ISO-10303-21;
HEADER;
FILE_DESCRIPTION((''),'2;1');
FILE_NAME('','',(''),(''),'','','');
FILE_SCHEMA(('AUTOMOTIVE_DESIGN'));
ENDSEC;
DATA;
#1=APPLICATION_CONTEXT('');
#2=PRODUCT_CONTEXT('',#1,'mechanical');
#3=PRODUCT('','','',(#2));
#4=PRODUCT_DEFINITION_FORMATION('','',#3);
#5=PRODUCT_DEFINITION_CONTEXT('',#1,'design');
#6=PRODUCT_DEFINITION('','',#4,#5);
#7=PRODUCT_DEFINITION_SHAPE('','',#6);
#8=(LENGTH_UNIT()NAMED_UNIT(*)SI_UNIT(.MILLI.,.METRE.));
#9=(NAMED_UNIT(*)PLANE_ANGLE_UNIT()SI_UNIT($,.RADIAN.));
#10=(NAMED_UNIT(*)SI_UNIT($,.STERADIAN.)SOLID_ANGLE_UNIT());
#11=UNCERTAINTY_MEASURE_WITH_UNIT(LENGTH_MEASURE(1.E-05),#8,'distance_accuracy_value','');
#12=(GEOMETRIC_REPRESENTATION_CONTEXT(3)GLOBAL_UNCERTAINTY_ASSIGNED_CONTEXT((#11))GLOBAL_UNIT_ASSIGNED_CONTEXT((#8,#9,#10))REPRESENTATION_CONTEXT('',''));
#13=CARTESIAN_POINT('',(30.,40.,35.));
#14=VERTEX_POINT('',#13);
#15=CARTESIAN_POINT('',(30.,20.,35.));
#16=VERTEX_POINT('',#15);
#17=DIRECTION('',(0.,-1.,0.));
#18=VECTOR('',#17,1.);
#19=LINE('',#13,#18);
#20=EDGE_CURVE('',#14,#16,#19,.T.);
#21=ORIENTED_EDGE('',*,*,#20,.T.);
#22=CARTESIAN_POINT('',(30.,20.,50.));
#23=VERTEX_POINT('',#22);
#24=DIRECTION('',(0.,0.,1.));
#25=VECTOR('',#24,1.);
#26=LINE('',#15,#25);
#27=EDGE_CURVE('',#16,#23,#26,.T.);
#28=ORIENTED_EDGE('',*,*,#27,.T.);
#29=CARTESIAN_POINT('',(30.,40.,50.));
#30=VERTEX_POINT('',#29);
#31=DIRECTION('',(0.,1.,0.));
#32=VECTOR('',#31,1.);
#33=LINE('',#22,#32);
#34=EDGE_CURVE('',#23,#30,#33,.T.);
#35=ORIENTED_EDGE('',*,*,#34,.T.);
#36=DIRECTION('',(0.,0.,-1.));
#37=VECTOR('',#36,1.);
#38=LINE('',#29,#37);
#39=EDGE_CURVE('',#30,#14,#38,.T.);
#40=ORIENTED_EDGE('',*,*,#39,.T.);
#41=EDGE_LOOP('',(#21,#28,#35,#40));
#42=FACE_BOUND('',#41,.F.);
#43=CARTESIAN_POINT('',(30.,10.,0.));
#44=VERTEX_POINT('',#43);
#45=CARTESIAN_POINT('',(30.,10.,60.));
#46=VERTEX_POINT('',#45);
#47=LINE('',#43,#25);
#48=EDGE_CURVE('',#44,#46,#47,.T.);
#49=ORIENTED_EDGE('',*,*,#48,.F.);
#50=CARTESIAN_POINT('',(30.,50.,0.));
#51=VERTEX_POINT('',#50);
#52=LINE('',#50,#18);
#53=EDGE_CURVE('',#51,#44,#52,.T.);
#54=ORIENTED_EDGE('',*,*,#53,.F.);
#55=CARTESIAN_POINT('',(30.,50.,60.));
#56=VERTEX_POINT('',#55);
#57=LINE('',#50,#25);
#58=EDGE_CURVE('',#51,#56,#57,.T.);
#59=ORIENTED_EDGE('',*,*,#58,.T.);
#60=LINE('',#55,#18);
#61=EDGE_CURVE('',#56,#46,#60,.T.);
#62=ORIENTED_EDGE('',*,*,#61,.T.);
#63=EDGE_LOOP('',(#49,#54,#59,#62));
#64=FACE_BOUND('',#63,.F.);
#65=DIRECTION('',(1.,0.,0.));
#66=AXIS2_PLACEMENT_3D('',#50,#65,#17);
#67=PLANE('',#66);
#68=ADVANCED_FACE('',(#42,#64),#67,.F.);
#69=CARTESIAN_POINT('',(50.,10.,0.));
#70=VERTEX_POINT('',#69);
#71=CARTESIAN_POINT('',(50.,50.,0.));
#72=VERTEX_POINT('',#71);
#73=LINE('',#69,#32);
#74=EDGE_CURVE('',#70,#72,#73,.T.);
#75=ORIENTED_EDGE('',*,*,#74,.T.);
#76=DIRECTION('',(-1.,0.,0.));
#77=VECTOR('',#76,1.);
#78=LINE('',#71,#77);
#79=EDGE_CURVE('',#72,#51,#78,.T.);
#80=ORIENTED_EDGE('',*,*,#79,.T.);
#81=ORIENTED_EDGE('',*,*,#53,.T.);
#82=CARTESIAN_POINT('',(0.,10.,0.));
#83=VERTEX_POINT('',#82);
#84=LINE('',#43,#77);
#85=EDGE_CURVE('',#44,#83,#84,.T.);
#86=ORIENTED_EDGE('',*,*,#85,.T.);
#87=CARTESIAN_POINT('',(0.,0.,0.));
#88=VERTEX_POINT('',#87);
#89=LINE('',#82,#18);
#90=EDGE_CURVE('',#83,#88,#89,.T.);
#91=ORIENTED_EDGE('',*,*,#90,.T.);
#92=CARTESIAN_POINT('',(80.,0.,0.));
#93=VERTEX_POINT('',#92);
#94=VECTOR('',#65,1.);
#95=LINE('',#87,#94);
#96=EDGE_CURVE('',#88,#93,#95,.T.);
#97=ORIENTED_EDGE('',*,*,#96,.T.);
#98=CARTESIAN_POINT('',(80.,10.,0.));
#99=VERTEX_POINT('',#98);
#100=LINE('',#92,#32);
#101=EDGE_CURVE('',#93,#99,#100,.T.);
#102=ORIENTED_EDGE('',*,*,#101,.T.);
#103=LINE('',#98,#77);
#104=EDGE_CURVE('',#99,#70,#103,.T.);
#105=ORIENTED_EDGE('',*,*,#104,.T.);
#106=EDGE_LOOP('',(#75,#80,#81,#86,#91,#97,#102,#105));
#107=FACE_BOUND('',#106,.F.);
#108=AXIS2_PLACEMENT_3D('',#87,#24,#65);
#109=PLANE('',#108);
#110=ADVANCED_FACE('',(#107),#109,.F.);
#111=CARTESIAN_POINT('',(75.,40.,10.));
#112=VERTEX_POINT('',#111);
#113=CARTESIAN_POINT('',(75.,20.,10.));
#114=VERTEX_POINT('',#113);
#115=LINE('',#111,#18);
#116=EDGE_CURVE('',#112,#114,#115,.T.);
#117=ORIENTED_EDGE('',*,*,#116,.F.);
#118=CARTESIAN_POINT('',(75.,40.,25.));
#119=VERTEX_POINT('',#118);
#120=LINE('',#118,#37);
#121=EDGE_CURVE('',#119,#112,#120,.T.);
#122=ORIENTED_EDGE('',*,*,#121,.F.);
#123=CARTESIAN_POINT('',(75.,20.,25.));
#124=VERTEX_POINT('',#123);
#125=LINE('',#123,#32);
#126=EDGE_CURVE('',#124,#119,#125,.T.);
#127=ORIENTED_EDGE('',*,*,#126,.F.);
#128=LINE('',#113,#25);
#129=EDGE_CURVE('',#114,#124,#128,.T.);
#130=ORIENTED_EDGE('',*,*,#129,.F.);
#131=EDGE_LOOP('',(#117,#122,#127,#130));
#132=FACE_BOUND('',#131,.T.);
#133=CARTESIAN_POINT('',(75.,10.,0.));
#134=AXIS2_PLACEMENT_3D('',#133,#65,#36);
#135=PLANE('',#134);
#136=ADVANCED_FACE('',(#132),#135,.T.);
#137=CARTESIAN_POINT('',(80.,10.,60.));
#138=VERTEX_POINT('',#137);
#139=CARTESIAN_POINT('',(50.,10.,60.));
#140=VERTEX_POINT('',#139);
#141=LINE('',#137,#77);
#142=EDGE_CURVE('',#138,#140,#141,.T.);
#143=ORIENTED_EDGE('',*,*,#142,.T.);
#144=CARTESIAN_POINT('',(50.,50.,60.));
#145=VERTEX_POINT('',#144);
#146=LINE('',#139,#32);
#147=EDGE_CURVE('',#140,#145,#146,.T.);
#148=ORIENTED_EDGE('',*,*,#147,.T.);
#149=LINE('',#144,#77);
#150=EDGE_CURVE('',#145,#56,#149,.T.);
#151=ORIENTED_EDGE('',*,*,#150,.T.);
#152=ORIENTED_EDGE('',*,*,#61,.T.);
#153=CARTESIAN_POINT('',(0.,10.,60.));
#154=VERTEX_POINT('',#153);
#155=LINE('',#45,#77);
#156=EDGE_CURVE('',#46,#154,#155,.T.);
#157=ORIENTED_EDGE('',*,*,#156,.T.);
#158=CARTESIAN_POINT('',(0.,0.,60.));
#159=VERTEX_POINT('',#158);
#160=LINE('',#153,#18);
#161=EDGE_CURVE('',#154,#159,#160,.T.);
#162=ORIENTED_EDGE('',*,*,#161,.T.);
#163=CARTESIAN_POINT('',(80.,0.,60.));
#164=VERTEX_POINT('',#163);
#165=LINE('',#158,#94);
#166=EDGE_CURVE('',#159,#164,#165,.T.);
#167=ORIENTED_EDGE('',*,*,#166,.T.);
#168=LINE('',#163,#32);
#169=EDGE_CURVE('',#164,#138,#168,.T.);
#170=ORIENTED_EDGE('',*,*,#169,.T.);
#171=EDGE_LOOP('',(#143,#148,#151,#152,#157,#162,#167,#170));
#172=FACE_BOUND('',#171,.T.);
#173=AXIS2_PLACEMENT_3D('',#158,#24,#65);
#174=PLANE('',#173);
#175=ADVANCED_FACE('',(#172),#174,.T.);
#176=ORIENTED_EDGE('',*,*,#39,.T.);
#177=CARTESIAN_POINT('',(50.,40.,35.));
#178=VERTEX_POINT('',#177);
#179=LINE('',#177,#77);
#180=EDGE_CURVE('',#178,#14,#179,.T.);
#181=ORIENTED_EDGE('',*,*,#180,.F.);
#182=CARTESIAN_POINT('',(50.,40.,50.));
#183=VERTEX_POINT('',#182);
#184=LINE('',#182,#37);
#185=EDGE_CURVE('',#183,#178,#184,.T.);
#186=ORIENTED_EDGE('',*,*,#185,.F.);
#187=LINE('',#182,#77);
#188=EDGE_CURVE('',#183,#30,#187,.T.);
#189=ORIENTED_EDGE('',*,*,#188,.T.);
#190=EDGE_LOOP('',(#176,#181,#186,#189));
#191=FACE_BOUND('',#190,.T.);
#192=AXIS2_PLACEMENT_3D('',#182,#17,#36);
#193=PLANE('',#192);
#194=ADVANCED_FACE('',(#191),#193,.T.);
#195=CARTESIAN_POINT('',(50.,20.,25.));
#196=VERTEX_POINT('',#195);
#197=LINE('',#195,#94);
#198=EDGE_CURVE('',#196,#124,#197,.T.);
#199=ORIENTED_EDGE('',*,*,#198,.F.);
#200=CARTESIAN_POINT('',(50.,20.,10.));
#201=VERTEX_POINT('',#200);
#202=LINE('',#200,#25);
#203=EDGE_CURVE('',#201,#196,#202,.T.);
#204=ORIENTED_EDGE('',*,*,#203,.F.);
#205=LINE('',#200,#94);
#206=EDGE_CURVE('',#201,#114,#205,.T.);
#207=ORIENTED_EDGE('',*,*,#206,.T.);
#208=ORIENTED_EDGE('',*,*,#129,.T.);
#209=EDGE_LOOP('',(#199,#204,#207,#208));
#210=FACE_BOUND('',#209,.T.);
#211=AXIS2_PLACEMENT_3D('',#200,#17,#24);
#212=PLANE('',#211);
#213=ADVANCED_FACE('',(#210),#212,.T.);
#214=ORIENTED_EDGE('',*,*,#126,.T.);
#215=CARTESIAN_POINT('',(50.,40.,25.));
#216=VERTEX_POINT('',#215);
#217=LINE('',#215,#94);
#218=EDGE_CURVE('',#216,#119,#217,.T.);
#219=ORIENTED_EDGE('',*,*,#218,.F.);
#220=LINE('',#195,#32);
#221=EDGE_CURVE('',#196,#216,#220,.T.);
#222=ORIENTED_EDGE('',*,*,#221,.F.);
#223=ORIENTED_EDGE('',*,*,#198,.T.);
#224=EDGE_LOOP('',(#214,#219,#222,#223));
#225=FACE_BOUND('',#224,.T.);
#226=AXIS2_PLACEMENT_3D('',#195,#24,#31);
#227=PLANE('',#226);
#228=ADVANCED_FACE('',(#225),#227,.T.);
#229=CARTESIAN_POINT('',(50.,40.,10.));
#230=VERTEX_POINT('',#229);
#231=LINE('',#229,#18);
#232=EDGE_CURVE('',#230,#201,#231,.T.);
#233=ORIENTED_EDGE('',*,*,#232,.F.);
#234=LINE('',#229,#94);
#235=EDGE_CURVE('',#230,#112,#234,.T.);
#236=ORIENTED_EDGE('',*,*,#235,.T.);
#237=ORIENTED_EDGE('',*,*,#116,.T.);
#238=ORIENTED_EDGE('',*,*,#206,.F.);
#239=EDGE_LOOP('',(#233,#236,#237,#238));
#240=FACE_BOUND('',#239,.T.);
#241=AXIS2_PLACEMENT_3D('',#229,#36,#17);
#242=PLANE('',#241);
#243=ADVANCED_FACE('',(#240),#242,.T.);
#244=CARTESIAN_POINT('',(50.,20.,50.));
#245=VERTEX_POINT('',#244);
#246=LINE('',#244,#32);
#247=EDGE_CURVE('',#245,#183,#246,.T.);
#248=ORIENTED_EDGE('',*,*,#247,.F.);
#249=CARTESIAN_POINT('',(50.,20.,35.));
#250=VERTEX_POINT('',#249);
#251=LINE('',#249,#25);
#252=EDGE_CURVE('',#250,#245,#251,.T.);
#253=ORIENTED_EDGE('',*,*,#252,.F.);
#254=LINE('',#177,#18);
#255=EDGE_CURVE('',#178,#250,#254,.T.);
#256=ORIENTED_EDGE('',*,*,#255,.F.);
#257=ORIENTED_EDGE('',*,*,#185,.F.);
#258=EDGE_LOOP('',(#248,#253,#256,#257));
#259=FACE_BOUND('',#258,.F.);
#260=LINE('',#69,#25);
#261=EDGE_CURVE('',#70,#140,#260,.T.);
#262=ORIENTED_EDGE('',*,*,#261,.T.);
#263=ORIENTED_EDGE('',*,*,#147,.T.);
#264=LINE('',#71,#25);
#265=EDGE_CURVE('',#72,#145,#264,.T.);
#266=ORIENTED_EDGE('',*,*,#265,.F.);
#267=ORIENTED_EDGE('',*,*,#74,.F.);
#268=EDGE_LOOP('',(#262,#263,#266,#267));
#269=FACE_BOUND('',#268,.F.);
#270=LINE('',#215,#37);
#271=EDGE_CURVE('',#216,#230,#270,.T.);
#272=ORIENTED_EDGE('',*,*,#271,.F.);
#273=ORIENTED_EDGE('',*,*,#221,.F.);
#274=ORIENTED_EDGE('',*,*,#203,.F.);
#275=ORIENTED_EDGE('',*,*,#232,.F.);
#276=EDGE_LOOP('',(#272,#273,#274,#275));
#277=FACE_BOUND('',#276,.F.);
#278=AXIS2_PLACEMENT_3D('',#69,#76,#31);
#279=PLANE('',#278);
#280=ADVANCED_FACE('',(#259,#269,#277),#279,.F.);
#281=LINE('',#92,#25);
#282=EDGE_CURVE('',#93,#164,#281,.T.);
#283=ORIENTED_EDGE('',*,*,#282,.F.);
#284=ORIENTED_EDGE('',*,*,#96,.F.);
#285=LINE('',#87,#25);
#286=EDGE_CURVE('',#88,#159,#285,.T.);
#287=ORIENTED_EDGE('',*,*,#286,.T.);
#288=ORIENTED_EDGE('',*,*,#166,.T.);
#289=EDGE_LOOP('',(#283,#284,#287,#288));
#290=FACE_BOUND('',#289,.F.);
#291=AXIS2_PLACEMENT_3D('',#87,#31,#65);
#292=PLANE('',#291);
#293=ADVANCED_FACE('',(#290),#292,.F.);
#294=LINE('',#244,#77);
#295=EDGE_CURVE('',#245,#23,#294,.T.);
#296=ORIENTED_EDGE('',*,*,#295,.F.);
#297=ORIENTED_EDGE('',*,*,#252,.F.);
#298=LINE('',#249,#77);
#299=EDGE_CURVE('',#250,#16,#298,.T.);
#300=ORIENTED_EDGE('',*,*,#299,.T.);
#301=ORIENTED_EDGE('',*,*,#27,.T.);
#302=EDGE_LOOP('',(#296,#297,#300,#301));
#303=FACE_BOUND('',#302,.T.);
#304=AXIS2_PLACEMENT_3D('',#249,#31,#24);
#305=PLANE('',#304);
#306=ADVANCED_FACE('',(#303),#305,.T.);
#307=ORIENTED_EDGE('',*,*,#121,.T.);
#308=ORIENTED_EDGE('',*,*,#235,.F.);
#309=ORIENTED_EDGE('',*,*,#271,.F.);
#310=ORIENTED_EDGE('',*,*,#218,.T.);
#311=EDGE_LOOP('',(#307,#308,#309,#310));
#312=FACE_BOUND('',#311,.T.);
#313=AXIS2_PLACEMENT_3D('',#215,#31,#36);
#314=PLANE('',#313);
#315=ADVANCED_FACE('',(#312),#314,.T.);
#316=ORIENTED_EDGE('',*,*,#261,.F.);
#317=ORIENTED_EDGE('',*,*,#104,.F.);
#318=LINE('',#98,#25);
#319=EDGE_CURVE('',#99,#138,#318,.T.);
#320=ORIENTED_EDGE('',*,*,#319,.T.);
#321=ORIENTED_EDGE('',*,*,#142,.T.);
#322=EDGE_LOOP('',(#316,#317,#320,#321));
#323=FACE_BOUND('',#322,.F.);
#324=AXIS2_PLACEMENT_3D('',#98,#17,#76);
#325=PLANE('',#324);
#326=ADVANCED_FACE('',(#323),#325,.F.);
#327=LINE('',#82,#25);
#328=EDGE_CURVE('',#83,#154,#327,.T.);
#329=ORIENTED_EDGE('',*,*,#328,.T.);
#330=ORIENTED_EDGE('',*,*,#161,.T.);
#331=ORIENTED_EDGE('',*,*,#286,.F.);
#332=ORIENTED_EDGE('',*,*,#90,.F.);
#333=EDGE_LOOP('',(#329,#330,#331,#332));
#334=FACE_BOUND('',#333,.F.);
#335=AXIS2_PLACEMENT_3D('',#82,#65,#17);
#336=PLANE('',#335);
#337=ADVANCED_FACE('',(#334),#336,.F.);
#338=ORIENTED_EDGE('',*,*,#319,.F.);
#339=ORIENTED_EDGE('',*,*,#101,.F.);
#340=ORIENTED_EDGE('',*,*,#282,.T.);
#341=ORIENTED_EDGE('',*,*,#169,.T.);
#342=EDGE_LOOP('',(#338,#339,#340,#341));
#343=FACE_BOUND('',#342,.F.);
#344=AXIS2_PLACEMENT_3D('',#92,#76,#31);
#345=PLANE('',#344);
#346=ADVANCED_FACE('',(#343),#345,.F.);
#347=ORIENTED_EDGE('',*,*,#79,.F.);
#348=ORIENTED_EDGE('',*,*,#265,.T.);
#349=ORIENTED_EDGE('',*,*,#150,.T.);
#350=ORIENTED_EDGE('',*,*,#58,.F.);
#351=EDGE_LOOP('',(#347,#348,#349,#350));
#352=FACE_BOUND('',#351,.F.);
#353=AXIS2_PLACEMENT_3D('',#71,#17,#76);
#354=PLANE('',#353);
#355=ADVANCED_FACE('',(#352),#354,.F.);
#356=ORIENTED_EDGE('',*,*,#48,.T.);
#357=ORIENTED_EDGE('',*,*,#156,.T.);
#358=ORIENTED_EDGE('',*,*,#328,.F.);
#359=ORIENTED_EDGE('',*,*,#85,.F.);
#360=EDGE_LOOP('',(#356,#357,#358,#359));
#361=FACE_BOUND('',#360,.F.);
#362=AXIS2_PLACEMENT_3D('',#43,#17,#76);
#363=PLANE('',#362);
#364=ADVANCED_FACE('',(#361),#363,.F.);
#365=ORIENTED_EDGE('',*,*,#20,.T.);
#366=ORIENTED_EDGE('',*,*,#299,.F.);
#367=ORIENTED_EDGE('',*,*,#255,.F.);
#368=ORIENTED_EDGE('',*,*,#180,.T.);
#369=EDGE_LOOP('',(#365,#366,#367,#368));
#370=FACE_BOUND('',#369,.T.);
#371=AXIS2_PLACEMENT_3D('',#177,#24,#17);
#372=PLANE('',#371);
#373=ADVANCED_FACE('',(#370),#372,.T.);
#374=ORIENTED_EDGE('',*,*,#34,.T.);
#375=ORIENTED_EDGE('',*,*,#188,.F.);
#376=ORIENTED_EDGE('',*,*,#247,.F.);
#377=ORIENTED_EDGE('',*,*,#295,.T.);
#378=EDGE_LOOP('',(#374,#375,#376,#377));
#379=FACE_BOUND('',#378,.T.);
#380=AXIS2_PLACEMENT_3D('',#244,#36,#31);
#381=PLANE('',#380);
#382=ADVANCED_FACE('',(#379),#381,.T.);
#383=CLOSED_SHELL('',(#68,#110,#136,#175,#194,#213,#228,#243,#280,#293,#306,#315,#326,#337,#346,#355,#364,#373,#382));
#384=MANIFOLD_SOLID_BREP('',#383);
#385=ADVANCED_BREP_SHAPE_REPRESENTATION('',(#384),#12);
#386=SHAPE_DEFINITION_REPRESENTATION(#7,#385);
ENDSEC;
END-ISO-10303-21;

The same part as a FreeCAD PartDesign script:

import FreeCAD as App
import Part
import Sketcher

V = App.Vector


def add_polygon(sketch, points):
    """Adds a closed chain of lines whose ends are joined by coincident constraints."""
    first, n = sketch.GeometryCount, len(points)
    for a, b in zip(points, points[1:] + points[:1]):
        sketch.addGeometry(Part.LineSegment(App.Vector(*a, 0), App.Vector(*b, 0)), False)
    for i in range(n):
        sketch.addConstraint(Sketcher.Constraint("Coincident", first + i, 2, first + (i + 1) % n, 1))

doc = App.newDocument("Part")
body = doc.addObject("PartDesign::Body", "Body")

# Sketch on XY plane
sketch1 = doc.addObject("Sketcher::SketchObject", "Sketch")
body.addObject(sketch1)
sketch1.AttachmentSupport = (doc.XY_Plane, [""])
sketch1.MapMode = "FlatFace"
add_polygon(sketch1, [(0, 10), (0, 0), (80, 0), (80, 10), (50, 10), (50, 50), (30, 50), (30, 10)])  # lines 0-7
sketch1.addConstraint([
    Sketcher.Constraint("Vertical", 0),
    Sketcher.Constraint("Horizontal", 1),
    Sketcher.Constraint("Vertical", 2),
    Sketcher.Constraint("Horizontal", 3),
    Sketcher.Constraint("Vertical", 4),
    Sketcher.Constraint("Horizontal", 5),
    Sketcher.Constraint("Vertical", 6),
    Sketcher.Constraint("Horizontal", 7),
    Sketcher.Constraint("Coincident", 0, 2, -1, 1),
    Sketcher.Constraint("Horizontal", 3, 2, 6, 2),
    Sketcher.Constraint("Equal", 3, 7),
    Sketcher.Constraint("DistanceX", 1, 1, 1, 2, 80.0),
    Sketcher.Constraint("DistanceY", 0, 2, 0, 1, 10.0),
    Sketcher.Constraint("DistanceY", 4, 1, 4, 2, 40.0),
    Sketcher.Constraint("DistanceX", 3, 2, 3, 1, 30.0),
])
pad1 = doc.addObject("PartDesign::Pad", "Pad")
body.addObject(pad1)
pad1.Profile = sketch1
pad1.Length = 60

# Sketch on YZ plane
sketch2 = doc.addObject("Sketcher::SketchObject", "Sketch001")
body.addObject(sketch2)
sketch2.AttachmentSupport = (doc.YZ_Plane, [""])
sketch2.MapMode = "FlatFace"
sketch2.AttachmentOffset = App.Placement(V(0, 0, 50), App.Rotation())
add_polygon(sketch2, [(20, 25), (20, 10), (40, 10), (40, 25)])  # lines 0-3
sketch2.addConstraint([
    Sketcher.Constraint("Vertical", 0),
    Sketcher.Constraint("Horizontal", 1),
    Sketcher.Constraint("Vertical", 2),
    Sketcher.Constraint("Horizontal", 3),
    Sketcher.Constraint("DistanceX", 1, 1, 1, 2, 20.0),
    Sketcher.Constraint("DistanceY", 0, 2, 0, 1, 15.0),
    Sketcher.Constraint("DistanceX", -1, 1, 0, 2, 20.0),
    Sketcher.Constraint("DistanceY", -1, 1, 0, 2, 10.0),
])
pad2 = doc.addObject("PartDesign::Pad", "Pad001")
body.addObject(pad2)
pad2.Profile = sketch2
pad2.Length = 25

# Sketch on YZ plane
sketch3 = doc.addObject("Sketcher::SketchObject", "Sketch002")
body.addObject(sketch3)
sketch3.AttachmentSupport = (doc.YZ_Plane, [""])
sketch3.MapMode = "FlatFace"
sketch3.AttachmentOffset = App.Placement(V(0, 0, 50), App.Rotation())
add_polygon(sketch3, [(20, 35), (40, 35), (40, 50), (20, 50)])  # lines 0-3
sketch3.addConstraint([
    Sketcher.Constraint("Horizontal", 0),
    Sketcher.Constraint("Vertical", 1),
    Sketcher.Constraint("Horizontal", 2),
    Sketcher.Constraint("Vertical", 3),
    Sketcher.Constraint("DistanceX", 0, 1, 0, 2, 20.0),
    Sketcher.Constraint("DistanceY", 1, 1, 1, 2, 15.0),
    Sketcher.Constraint("DistanceX", -1, 1, 0, 2, 40.0),
    Sketcher.Constraint("DistanceY", -1, 1, 0, 2, 35.0),
])
pocket1 = doc.addObject("PartDesign::Pocket", "Pocket")
body.addObject(pocket1)
pocket1.Profile = sketch3
pocket1.Length = 20

doc.recompute()
